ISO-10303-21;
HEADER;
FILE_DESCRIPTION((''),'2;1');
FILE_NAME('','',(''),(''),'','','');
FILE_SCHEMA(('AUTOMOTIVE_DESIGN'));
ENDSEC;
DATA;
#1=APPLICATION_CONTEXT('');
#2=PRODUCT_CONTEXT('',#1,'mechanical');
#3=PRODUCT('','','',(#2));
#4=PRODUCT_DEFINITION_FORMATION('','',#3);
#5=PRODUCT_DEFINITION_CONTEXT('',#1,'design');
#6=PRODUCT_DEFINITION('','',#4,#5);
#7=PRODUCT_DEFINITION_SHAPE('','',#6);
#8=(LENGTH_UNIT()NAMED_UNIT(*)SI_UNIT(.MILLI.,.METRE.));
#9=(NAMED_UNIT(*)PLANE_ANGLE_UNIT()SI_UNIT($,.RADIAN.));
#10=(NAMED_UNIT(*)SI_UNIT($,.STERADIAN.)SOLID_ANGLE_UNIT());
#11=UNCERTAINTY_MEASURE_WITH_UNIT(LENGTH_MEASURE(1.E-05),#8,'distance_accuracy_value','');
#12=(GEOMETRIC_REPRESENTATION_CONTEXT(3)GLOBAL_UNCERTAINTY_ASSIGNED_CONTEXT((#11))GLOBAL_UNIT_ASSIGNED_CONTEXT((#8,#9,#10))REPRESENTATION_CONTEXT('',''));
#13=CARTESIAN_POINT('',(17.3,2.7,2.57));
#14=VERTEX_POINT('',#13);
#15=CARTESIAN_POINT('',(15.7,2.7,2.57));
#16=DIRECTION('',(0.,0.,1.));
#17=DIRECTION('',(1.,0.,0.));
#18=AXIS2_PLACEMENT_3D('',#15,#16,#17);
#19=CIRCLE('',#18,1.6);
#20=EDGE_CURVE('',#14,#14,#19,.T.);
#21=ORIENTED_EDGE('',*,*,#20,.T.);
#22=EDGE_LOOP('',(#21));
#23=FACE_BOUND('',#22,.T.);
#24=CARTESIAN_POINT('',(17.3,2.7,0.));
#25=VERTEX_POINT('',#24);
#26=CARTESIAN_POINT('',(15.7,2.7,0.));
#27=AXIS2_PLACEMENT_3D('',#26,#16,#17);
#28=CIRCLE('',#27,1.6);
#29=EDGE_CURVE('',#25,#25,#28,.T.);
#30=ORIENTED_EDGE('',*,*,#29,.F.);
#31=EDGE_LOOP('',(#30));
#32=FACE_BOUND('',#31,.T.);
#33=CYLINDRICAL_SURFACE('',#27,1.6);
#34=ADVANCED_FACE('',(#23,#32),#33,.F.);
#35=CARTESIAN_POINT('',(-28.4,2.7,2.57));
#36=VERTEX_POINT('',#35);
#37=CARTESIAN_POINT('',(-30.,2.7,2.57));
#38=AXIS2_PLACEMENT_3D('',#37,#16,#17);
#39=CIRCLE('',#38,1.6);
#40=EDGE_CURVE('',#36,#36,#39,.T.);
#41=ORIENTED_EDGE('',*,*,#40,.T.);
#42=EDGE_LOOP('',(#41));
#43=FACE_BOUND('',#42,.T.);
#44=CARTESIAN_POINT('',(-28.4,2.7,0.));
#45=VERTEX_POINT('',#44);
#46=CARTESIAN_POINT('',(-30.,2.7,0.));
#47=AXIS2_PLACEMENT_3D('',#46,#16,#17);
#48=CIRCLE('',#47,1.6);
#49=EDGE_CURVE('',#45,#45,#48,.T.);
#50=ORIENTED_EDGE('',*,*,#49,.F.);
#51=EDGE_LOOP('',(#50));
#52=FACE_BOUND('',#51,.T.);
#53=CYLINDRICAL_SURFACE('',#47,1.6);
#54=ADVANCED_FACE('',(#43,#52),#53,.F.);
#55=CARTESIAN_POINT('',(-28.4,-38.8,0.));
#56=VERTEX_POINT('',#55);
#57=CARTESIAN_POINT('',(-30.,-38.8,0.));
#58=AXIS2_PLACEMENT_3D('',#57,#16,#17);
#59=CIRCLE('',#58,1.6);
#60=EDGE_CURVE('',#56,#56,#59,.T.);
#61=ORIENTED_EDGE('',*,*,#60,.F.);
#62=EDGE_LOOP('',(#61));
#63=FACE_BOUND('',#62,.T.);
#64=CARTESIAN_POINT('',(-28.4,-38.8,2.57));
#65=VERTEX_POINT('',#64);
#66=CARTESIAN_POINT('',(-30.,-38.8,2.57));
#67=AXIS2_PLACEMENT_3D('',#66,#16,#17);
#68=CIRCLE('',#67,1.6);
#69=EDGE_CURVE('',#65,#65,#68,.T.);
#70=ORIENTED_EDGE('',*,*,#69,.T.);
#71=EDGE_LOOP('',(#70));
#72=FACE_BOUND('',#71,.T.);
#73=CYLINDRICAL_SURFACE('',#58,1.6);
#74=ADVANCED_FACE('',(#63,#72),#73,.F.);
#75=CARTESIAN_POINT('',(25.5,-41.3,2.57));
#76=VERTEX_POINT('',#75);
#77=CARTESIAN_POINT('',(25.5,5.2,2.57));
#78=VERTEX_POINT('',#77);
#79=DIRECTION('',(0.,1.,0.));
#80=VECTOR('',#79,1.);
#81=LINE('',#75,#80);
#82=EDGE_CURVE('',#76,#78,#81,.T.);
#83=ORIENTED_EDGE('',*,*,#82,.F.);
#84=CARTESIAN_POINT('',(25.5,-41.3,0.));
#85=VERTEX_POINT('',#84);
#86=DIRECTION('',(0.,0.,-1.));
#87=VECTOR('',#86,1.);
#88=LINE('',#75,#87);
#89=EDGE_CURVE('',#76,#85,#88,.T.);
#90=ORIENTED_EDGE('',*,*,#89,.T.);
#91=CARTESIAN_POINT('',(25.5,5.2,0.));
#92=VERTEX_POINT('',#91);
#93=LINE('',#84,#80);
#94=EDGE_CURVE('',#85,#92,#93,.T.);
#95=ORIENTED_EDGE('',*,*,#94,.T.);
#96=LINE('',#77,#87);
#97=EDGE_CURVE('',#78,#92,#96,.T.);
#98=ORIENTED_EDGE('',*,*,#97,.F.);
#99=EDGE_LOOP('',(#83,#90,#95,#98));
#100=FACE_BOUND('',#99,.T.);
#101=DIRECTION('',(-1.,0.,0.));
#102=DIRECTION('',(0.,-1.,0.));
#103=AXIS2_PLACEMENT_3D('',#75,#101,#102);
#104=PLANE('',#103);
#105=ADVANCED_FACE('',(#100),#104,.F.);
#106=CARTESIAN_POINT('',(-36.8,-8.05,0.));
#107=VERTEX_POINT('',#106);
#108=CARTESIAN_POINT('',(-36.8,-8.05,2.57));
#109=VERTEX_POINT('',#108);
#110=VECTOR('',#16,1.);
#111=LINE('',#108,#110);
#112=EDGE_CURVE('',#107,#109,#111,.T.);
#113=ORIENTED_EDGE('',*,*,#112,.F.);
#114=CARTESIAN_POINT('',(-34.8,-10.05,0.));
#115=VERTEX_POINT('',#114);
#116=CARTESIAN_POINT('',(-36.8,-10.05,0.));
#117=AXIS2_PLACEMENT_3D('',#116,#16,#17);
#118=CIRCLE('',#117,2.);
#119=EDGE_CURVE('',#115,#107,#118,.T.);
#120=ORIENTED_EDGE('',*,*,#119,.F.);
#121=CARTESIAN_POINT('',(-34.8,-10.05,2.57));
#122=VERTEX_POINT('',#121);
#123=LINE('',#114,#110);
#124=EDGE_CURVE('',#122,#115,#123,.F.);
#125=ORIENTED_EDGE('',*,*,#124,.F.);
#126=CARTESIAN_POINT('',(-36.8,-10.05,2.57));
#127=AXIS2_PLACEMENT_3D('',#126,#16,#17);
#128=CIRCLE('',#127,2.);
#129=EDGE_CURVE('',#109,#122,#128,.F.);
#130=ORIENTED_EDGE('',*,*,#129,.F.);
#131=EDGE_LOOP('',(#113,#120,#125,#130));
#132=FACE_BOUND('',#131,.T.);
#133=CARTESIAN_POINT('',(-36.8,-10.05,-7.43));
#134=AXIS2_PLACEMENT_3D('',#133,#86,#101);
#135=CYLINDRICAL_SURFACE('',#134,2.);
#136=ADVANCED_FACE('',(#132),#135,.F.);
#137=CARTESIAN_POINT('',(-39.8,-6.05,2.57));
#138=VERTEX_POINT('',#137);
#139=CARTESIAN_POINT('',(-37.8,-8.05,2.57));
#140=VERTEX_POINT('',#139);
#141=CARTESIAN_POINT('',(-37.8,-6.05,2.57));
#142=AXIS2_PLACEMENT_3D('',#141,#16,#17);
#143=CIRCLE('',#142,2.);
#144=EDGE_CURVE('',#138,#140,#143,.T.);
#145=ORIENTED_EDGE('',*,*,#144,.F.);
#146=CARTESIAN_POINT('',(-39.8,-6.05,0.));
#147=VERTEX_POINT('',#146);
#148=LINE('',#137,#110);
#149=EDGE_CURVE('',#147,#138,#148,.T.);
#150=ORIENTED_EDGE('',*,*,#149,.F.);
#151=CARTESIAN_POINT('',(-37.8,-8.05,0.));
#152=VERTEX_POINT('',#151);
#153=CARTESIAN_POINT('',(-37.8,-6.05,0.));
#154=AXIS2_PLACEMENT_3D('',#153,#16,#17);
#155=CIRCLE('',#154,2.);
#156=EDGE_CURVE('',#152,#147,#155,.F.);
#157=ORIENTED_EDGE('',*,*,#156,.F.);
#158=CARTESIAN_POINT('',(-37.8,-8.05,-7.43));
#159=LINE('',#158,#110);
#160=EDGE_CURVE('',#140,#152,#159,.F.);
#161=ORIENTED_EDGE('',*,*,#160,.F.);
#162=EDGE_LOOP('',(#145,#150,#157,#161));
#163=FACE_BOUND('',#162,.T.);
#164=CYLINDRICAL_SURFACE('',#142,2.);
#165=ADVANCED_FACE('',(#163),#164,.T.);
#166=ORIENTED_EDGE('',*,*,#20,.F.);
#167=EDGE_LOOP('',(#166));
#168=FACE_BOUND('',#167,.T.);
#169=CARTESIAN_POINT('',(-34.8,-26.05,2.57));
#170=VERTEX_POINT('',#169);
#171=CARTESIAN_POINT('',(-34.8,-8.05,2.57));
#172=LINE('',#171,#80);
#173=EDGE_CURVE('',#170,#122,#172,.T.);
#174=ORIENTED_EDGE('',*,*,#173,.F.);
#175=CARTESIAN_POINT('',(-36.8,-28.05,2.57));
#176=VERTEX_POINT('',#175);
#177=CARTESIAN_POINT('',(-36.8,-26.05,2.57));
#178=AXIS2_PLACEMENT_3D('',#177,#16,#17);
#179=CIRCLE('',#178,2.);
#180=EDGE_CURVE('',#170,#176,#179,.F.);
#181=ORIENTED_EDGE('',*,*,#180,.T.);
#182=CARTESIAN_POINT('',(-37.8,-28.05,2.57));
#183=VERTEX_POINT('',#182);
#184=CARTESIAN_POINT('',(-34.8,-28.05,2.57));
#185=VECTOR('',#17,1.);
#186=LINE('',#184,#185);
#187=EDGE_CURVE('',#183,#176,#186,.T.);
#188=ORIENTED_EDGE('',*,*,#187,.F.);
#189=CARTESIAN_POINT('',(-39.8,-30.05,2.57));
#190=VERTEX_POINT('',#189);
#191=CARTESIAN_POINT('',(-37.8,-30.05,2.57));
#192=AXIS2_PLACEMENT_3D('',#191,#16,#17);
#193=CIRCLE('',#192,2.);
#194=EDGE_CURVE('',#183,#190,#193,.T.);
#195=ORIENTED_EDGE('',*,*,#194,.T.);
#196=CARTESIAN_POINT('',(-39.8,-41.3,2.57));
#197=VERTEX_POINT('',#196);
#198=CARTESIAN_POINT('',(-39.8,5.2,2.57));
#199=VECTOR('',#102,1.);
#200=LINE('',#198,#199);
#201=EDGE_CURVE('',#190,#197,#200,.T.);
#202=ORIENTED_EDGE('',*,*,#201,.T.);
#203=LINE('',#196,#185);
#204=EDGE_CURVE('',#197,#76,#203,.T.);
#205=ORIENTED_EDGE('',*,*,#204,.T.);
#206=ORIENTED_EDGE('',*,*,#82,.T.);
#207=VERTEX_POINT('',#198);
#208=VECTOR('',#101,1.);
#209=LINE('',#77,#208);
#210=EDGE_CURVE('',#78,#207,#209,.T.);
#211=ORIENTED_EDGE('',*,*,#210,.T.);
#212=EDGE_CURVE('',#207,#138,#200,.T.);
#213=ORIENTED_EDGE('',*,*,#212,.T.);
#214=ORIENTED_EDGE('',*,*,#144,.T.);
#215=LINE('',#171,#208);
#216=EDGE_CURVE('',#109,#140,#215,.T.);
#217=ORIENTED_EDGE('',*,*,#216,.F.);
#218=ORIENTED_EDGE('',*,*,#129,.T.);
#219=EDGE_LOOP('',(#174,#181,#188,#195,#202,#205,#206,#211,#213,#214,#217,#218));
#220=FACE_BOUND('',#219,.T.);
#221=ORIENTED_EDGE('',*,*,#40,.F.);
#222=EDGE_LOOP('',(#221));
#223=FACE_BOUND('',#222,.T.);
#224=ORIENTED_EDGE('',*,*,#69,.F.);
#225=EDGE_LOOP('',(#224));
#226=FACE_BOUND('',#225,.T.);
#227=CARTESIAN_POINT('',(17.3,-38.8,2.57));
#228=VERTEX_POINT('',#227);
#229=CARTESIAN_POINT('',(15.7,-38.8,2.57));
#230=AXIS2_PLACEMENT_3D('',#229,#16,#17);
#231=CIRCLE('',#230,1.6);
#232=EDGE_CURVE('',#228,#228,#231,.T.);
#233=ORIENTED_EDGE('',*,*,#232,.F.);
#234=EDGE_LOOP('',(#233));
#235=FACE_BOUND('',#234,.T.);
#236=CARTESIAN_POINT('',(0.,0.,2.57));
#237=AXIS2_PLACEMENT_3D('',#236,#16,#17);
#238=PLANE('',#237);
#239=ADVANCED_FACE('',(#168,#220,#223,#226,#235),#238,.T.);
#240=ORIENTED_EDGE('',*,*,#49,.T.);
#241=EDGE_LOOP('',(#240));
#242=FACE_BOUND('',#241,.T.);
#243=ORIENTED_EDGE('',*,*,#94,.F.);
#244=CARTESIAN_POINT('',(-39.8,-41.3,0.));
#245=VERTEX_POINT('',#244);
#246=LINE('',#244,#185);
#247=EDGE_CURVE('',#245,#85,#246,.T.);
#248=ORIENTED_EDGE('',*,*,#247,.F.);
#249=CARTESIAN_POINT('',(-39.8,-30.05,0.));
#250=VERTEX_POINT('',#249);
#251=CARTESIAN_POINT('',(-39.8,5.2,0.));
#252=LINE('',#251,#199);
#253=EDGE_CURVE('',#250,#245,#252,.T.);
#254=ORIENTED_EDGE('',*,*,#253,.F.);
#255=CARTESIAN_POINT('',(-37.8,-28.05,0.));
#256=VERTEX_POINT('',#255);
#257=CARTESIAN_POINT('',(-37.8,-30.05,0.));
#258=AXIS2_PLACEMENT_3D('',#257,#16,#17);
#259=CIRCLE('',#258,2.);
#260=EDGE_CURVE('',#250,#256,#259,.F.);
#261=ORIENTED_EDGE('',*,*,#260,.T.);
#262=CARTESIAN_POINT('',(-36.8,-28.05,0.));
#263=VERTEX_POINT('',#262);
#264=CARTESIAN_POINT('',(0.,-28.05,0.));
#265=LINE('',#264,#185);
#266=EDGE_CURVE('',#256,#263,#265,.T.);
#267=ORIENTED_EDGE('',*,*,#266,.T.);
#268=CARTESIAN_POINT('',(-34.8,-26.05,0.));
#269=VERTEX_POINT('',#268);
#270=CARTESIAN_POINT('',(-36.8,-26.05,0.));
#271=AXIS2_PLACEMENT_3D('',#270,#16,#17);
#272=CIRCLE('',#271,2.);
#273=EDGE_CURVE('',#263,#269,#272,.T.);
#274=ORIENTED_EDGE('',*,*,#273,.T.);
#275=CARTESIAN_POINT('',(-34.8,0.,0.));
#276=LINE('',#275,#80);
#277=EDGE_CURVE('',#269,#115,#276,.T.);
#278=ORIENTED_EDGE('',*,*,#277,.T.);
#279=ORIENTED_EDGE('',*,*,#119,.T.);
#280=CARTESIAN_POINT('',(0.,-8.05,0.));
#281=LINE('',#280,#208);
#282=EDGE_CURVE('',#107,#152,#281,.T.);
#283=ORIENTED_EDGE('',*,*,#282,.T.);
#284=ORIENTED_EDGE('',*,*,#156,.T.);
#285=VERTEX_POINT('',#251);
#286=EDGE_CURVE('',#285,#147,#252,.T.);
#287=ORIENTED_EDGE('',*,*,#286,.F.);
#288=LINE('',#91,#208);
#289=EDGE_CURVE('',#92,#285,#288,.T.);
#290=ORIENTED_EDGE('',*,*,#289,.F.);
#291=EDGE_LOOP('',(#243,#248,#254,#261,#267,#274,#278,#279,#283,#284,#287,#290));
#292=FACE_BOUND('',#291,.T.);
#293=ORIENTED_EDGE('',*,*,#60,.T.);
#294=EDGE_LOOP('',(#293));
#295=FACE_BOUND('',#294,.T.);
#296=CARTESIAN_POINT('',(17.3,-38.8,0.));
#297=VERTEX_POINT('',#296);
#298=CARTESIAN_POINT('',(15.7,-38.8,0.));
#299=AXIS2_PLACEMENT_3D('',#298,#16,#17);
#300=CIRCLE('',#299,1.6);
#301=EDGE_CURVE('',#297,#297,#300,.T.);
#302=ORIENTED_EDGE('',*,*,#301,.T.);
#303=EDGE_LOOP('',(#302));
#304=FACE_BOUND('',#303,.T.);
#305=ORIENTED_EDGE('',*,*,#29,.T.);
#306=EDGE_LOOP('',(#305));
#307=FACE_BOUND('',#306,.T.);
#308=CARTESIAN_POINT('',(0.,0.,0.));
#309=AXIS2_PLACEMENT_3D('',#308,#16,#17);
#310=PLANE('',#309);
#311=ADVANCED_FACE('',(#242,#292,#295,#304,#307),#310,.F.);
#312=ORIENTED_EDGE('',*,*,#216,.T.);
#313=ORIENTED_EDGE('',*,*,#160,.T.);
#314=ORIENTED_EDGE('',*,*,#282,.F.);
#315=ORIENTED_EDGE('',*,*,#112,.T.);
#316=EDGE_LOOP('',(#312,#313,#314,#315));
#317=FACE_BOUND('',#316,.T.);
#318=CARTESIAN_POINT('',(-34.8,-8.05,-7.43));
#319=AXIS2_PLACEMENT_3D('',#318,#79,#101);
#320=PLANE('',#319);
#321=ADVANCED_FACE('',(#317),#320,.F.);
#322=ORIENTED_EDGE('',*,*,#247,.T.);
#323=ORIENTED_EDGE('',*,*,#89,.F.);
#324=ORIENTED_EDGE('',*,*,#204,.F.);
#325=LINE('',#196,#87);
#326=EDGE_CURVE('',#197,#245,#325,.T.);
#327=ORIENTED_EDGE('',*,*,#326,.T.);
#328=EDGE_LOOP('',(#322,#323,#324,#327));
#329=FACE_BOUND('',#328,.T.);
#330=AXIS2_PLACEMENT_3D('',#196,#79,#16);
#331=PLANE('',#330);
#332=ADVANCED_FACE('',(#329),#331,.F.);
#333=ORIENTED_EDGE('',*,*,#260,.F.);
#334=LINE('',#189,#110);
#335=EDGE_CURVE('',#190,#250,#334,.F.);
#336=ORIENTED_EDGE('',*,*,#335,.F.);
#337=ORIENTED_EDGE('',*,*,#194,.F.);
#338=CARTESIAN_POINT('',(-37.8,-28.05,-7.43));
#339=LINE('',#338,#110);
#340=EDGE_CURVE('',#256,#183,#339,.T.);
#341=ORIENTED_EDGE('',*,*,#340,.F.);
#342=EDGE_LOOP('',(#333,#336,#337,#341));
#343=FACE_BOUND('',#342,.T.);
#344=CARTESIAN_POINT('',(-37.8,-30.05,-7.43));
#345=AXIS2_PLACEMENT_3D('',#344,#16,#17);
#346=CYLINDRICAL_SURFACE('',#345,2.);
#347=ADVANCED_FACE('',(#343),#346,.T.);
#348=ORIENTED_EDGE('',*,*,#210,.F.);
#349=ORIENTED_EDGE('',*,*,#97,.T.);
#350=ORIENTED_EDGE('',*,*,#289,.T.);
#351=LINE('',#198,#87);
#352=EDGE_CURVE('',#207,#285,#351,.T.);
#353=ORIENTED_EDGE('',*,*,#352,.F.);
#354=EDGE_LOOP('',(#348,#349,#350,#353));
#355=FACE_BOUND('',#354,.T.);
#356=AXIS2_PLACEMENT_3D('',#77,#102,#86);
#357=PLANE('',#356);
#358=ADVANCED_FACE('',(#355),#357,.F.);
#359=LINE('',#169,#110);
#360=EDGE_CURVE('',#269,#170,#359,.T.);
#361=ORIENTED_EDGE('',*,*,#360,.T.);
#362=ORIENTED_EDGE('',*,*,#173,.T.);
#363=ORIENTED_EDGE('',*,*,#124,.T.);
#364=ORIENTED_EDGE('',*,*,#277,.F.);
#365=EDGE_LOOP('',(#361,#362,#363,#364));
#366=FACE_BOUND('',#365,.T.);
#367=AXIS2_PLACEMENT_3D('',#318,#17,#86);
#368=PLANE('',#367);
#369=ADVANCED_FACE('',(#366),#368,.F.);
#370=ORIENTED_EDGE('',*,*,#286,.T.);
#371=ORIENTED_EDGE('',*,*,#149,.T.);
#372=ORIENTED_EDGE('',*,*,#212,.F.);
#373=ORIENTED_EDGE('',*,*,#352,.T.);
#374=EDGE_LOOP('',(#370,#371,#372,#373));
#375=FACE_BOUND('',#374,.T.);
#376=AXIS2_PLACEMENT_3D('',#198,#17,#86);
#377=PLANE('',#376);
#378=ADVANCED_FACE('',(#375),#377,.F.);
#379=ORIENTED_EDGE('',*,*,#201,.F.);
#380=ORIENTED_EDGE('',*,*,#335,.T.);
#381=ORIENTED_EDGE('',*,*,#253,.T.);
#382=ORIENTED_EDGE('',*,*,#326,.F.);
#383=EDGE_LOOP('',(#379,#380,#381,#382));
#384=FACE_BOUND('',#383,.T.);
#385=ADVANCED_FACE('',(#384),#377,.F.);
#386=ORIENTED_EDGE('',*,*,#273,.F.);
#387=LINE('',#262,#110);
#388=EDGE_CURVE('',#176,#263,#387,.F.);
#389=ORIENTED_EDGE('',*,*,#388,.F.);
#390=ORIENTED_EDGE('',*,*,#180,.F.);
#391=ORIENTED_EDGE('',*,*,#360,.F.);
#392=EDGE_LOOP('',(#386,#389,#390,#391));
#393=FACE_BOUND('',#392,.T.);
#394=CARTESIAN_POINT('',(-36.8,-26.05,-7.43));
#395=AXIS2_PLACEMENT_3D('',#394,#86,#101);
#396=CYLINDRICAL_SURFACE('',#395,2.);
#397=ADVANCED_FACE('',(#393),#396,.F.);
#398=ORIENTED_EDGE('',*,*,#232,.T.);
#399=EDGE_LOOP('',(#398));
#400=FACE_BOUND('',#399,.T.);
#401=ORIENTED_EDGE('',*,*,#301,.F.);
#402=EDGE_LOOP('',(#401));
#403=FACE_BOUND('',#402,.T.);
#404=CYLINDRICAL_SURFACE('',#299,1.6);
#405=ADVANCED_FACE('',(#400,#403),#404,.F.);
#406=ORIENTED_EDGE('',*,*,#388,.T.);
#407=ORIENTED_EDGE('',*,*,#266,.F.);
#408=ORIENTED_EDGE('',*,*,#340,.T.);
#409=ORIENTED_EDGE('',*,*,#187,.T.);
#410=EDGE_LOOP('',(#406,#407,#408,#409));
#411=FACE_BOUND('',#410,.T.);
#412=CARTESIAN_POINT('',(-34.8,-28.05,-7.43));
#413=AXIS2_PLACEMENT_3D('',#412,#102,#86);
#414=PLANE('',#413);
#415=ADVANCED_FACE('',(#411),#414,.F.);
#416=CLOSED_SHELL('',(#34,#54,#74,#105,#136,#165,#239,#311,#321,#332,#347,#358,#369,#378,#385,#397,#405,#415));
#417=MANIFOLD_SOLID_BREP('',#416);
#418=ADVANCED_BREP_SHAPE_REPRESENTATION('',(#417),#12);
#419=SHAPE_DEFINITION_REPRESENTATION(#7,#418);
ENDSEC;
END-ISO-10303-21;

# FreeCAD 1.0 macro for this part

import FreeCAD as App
import Part
import Sketcher
from FreeCAD import Vector
Q = App.Units.Quantity


def edges_at(feature, points):
    """Names of the edges that pass closest to the given points."""
    edges = feature.Shape.Edges
    near = lambda p: min(range(len(edges)), key=lambda i: edges[i].distToShape(Part.Vertex(*p))[0])
    return sorted({f"Edge{near(p) + 1}" for p in points})

doc = App.newDocument("Part")
body = doc.addObject("PartDesign::Body", "Body")

sketch1 = body.newObject("Sketcher::SketchObject", "Sketch")
sketch1.AttachmentSupport = (doc.getObject("XY_Plane"), [""])
sketch1.MapMode = "FlatFace"
sketch1.addGeometry(Part.LineSegment(Vector(-40, 5, 0), Vector(-40, -41, 0)), False)
sketch1.addGeometry(Part.LineSegment(Vector(-40, -41, 0), Vector(26, -41, 0)), False)
sketch1.addGeometry(Part.LineSegment(Vector(26, -41, 0), Vector(26, 5, 0)), False)
sketch1.addGeometry(Part.LineSegment(Vector(26, 5, 0), Vector(-40, 5, 0)), False)
sketch1.addConstraint(Sketcher.Constraint("Coincident", 0, 2, 1, 1))
sketch1.addConstraint(Sketcher.Constraint("Coincident", 1, 2, 2, 1))
sketch1.addConstraint(Sketcher.Constraint("Coincident", 2, 2, 3, 1))
sketch1.addConstraint(Sketcher.Constraint("Coincident", 3, 2, 0, 1))
sketch1.addConstraint(Sketcher.Constraint("Vertical", 0))
sketch1.addConstraint(Sketcher.Constraint("Horizontal", 1))
sketch1.addConstraint(Sketcher.Constraint("Vertical", 2))
sketch1.addConstraint(Sketcher.Constraint("Horizontal", 3))
sketch1.addConstraint(Sketcher.Constraint("DistanceX", 1, 1, 1, 2, Q("65.3 mm")))
sketch1.addConstraint(Sketcher.Constraint("DistanceY", 0, 2, 0, 1, Q("46.5 mm")))
sketch1.addConstraint(Sketcher.Constraint("DistanceX", 0, 2, -1, 1, Q("39.8 mm")))
sketch1.addConstraint(Sketcher.Constraint("DistanceY", 0, 2, -1, 1, Q("41.3 mm")))
pad1 = body.newObject("PartDesign::Pad", "Pad")
pad1.Profile = sketch1
pad1.Length = 2.57

sketch2 = body.newObject("Sketcher::SketchObject", "Sketch001")
sketch2.AttachmentSupport = (doc.getObject("XY_Plane"), [""])
sketch2.MapMode = "FlatFace"
sketch2.AttachmentOffset = App.Placement(Vector(0, 0, 2.57), App.Rotation())
sketch2.addGeometry(Part.Circle(Vector(15.7, -38.8, 0), Vector(0, 0, 1), 1.6), False)
sketch2.addGeometry(Part.Circle(Vector(15.7, 2.7, 0), Vector(0, 0, 1), 1.6), False)
sketch2.addGeometry(Part.Circle(Vector(-30, 2.7, 0), Vector(0, 0, 1), 1.6), False)
sketch2.addGeometry(Part.Circle(Vector(-30, -38.8, 0), Vector(0, 0, 1), 1.6), False)
sketch2.addConstraint(Sketcher.Constraint("Equal", 0, 1))
sketch2.addConstraint(Sketcher.Constraint("Equal", 1, 2))
sketch2.addConstraint(Sketcher.Constraint("Equal", 2, 3))
sketch2.addConstraint(Sketcher.Constraint("Horizontal", 1, 3, 2, 3))
sketch2.addConstraint(Sketcher.Constraint("Horizontal", 0, 3, 3, 3))
sketch2.addConstraint(Sketcher.Constraint("Vertical", 0, 3, 1, 3))
sketch2.addConstraint(Sketcher.Constraint("Vertical", 2, 3, 3, 3))
sketch2.addConstraint(Sketcher.Constraint("Diameter", 0, Q("3.2 mm")))
sketch2.addConstraint(Sketcher.Constraint("DistanceX", 2, 3, -1, 1, Q("30 mm")))
sketch2.addConstraint(Sketcher.Constraint("DistanceX", -1, 1, 0, 3, Q("15.7 mm")))
sketch2.addConstraint(Sketcher.Constraint("DistanceY", 0, 3, -1, 1, Q("38.8 mm")))
sketch2.addConstraint(Sketcher.Constraint("DistanceY", -1, 1, 1, 3, Q("2.7 mm")))
pocket1 = body.newObject("PartDesign::Pocket", "Pocket")
pocket1.Profile = sketch2
pocket1.Length = 2.57

sketch3 = body.newObject("Sketcher::SketchObject", "Sketch002")
sketch3.AttachmentSupport = (doc.getObject("XY_Plane"), [""])
sketch3.MapMode = "FlatFace"
sketch3.AttachmentOffset = App.Placement(Vector(0, 0, 2.57), App.Rotation())
sketch3.addGeometry(Part.Circle(Vector(-40, -18, 0), Vector(0, 0, 1), 5), False)
sketch3.addConstraint(Sketcher.Constraint("Diameter", 0, Q("10 mm")))
sketch3.addConstraint(Sketcher.Constraint("DistanceX", 0, 3, -1, 1, Q("39.8 mm")))
sketch3.addConstraint(Sketcher.Constraint("DistanceY", 0, 3, -1, 1, Q("18.05 mm")))
pocket2 = body.newObject("PartDesign::Pocket", "Pocket001")
pocket2.Profile = sketch3
pocket2.Length = 2.57

sketch4 = body.newObject("Sketcher::SketchObject", "Sketch003")
sketch4.AttachmentSupport = (doc.getObject("XY_Plane"), [""])
sketch4.MapMode = "FlatFace"
sketch4.AttachmentOffset = App.Placement(Vector(0, 0, 2.57), App.Rotation())
sketch4.addGeometry(Part.LineSegment(Vector(-40, -8, 0), Vector(-40, -28, 0)), False)
sketch4.addGeometry(Part.LineSegment(Vector(-40, -28, 0), Vector(-35, -28, 0)), False)
sketch4.addGeometry(Part.LineSegment(Vector(-35, -28, 0), Vector(-35, -8, 0)), False)
sketch4.addGeometry(Part.LineSegment(Vector(-35, -8, 0), Vector(-40, -8, 0)), False)
sketch4.addConstraint(Sketcher.Constraint("Coincident", 0, 2, 1, 1))
sketch4.addConstraint(Sketcher.Constraint("Coincident", 1, 2, 2, 1))
sketch4.addConstraint(Sketcher.Constraint("Coincident", 2, 2, 3, 1))
sketch4.addConstraint(Sketcher.Constraint("Coincident", 3, 2, 0, 1))
sketch4.addConstraint(Sketcher.Constraint("Vertical", 0))
sketch4.addConstraint(Sketcher.Constraint("Horizontal", 1))
sketch4.addConstraint(Sketcher.Constraint("Vertical", 2))
sketch4.addConstraint(Sketcher.Constraint("Horizontal", 3))
sketch4.addConstraint(Sketcher.Constraint("DistanceX", 1, 1, 1, 2, Q("5 mm")))
sketch4.addConstraint(Sketcher.Constraint("DistanceY", 0, 2, 0, 1, Q("20 mm")))
sketch4.addConstraint(Sketcher.Constraint("DistanceX", 0, 2, -1, 1, Q("39.8 mm")))
sketch4.addConstraint(Sketcher.Constraint("DistanceY", 0, 2, -1, 1, Q("28.05 mm")))
pocket3 = body.newObject("PartDesign::Pocket", "Pocket002")
pocket3.Profile = sketch4
pocket3.Length = 10
doc.recompute()

fillet = body.newObject("PartDesign::Fillet", "Fillet")
fillet.Base = (pocket3, edges_at(pocket3, [
    (-39.8, -8.05, 1.285),
    (-34.8, -28.05, 1.285),
    (-39.8, -28.05, 1.285),
    (-34.8, -8.05, 1.285),
]))
fillet.Radius = 2

doc.recompute()
